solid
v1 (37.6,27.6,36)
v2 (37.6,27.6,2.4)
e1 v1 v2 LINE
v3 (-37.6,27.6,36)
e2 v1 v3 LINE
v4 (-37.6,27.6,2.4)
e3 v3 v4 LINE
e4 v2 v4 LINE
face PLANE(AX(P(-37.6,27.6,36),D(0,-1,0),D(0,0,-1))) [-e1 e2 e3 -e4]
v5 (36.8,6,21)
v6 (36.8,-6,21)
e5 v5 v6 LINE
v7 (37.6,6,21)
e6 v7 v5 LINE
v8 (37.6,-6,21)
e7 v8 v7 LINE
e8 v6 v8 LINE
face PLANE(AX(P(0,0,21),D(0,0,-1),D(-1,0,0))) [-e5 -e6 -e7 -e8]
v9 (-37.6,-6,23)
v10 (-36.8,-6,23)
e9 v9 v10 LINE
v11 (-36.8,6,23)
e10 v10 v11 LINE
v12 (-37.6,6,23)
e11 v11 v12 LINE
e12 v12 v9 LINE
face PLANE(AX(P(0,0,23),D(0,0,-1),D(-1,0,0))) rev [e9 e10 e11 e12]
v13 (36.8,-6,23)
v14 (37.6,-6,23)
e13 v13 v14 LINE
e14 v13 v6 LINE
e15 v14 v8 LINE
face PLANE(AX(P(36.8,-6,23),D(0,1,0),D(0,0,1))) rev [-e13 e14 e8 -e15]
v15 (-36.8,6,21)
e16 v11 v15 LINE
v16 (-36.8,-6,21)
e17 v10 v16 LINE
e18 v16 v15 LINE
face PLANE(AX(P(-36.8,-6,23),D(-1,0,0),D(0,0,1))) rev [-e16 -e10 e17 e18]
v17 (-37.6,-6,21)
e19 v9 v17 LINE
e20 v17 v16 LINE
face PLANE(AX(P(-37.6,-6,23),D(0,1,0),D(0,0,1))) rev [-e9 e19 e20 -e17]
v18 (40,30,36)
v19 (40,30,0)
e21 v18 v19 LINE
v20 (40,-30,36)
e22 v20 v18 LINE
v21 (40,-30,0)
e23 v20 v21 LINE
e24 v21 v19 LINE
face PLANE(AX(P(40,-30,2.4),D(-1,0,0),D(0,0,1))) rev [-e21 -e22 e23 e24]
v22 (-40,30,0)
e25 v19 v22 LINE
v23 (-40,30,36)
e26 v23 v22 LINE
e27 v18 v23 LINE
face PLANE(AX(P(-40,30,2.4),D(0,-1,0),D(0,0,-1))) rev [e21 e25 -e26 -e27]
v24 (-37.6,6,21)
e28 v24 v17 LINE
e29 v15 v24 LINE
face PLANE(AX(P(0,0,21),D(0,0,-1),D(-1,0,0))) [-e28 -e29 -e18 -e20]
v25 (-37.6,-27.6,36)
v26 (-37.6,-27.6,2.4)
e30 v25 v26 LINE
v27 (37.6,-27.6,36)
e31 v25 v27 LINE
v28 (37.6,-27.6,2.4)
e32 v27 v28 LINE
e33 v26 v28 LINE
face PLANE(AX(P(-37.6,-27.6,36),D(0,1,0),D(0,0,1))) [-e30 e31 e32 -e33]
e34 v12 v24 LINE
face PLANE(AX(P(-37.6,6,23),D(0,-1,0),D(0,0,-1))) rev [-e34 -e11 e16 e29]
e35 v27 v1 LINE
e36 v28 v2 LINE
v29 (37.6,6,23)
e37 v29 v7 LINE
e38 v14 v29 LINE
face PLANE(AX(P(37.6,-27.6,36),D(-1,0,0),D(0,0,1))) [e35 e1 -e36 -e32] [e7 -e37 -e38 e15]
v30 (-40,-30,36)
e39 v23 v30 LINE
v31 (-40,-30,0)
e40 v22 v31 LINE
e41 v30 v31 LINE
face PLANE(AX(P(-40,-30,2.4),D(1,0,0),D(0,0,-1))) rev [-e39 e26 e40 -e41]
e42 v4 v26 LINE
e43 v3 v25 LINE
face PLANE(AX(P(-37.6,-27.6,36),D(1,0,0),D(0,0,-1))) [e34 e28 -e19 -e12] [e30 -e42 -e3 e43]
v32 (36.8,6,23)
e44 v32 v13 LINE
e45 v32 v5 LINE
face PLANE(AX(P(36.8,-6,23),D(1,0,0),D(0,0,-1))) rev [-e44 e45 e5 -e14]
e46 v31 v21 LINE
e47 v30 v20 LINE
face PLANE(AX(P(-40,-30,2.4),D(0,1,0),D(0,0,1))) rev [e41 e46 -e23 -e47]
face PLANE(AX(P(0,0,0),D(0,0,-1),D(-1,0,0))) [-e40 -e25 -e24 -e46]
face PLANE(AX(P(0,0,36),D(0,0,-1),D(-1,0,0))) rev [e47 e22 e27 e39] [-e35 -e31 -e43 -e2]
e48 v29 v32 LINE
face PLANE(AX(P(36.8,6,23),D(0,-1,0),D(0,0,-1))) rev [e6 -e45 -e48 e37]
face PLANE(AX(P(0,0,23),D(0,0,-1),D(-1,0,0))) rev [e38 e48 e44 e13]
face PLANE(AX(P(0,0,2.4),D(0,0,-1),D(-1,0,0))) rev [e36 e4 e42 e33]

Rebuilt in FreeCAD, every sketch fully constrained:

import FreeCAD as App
import Part
import Sketcher
from FreeCAD import Vector
Q = App.Units.Quantity

doc = App.newDocument("Part")
body = doc.addObject("PartDesign::Body", "Body")

# Sketch on XY plane
sketch1 = body.newObject("Sketcher::SketchObject", "Sketch")
sketch1.AttachmentSupport = (doc.getObject("XY_Plane"), [""])
sketch1.MapMode = "FlatFace"
sketch1.addGeometry([
    Part.LineSegment(Vector(-40, 30, 0), Vector(-40, -30, 0)),
    Part.LineSegment(Vector(-40, -30, 0), Vector(40, -30, 0)),
    Part.LineSegment(Vector(40, -30, 0), Vector(40, 30, 0)),
    Part.LineSegment(Vector(40, 30, 0), Vector(-40, 30, 0)),
], False)
sketch1.addConstraint([
    Sketcher.Constraint("Coincident", 0, 2, 1, 1),
    Sketcher.Constraint("Coincident", 1, 2, 2, 1),
    Sketcher.Constraint("Coincident", 2, 2, 3, 1),
    Sketcher.Constraint("Coincident", 3, 2, 0, 1),
    Sketcher.Constraint("Vertical", 0),
    Sketcher.Constraint("Horizontal", 1),
    Sketcher.Constraint("Vertical", 2),
    Sketcher.Constraint("Horizontal", 3),
    Sketcher.Constraint("Symmetric", 0, 2, 2, 2, -1, 1),
    Sketcher.Constraint("DistanceX", 1, 1, 1, 2, Q("80 mm")),
    Sketcher.Constraint("DistanceY", 0, 2, 0, 1, Q("60 mm")),
])
pad1 = body.newObject("PartDesign::Pad", "Pad")
pad1.Profile = sketch1
pad1.Length = 2.4

# Sketch on XY plane
sketch2 = body.newObject("Sketcher::SketchObject", "Sketch001")
sketch2.AttachmentSupport = (doc.getObject("XY_Plane"), [""])
sketch2.MapMode = "FlatFace"
sketch2.AttachmentOffset = App.Placement(Vector(0, 0, 2.4), App.Rotation())
sketch2.addGeometry([
    Part.LineSegment(Vector(-40, 30, 0), Vector(-40, -30, 0)),  # 0
    Part.LineSegment(Vector(-40, -30, 0), Vector(40, -30, 0)),  # 1
    Part.LineSegment(Vector(40, -30, 0), Vector(40, 30, 0)),  # 2
    Part.LineSegment(Vector(40, 30, 0), Vector(-40, 30, 0)),  # 3
    Part.LineSegment(Vector(38, -28, 0), Vector(-38, -28, 0)),  # 4
    Part.LineSegment(Vector(-38, -28, 0), Vector(-38, 28, 0)),  # 5
    Part.LineSegment(Vector(-38, 28, 0), Vector(38, 28, 0)),  # 6
    Part.LineSegment(Vector(38, 28, 0), Vector(38, -28, 0)),  # 7
], False)
sketch2.addConstraint([
    Sketcher.Constraint("Coincident", 0, 2, 1, 1),
    Sketcher.Constraint("Coincident", 1, 2, 2, 1),
    Sketcher.Constraint("Coincident", 2, 2, 3, 1),
    Sketcher.Constraint("Coincident", 3, 2, 0, 1),
    Sketcher.Constraint("Coincident", 4, 2, 5, 1),
    Sketcher.Constraint("Coincident", 5, 2, 6, 1),
    Sketcher.Constraint("Coincident", 6, 2, 7, 1),
    Sketcher.Constraint("Coincident", 7, 2, 4, 1),
    Sketcher.Constraint("Vertical", 0),
    Sketcher.Constraint("Horizontal", 1),
    Sketcher.Constraint("Vertical", 2),
    Sketcher.Constraint("Horizontal", 3),
    Sketcher.Constraint("Horizontal", 4),
    Sketcher.Constraint("Vertical", 5),
    Sketcher.Constraint("Horizontal", 6),
    Sketcher.Constraint("Vertical", 7),
    Sketcher.Constraint("Symmetric", 0, 2, 2, 2, -1, 1),
    Sketcher.Constraint("Symmetric", 4, 2, 6, 2, -1, 1),
    Sketcher.Constraint("DistanceX", 1, 1, 1, 2, Q("80 mm")),
    Sketcher.Constraint("DistanceY", 0, 2, 0, 1, Q("60 mm")),
    Sketcher.Constraint("DistanceX", 4, 2, 4, 1, Q("75.2 mm")),
    Sketcher.Constraint("DistanceY", 5, 1, 5, 2, Q("55.2 mm")),
])
pad2 = body.newObject("PartDesign::Pad", "Pad001")
pad2.Profile = sketch2
pad2.Length = 33.6

# Sketch on XY plane
sketch3 = body.newObject("Sketcher::SketchObject", "Sketch002")
sketch3.AttachmentSupport = (doc.getObject("XY_Plane"), [""])
sketch3.MapMode = "FlatFace"
sketch3.AttachmentOffset = App.Placement(Vector(0, 0, 21), App.Rotation())
sketch3.addGeometry([
    Part.LineSegment(Vector(-37.6, 6, 0), Vector(-37.6, -6, 0)),
    Part.LineSegment(Vector(-37.6, -6, 0), Vector(-36.8, -6, 0)),
    Part.LineSegment(Vector(-36.8, -6, 0), Vector(-36.8, 6, 0)),
    Part.LineSegment(Vector(-36.8, 6, 0), Vector(-37.6, 6, 0)),
], False)
sketch3.addConstraint([
    Sketcher.Constraint("Coincident", 0, 2, 1, 1),
    Sketcher.Constraint("Coincident", 1, 2, 2, 1),
    Sketcher.Constraint("Coincident", 2, 2, 3, 1),
    Sketcher.Constraint("Coincident", 3, 2, 0, 1),
    Sketcher.Constraint("Vertical", 0),
    Sketcher.Constraint("Horizontal", 1),
    Sketcher.Constraint("Vertical", 2),
    Sketcher.Constraint("Horizontal", 3),
    Sketcher.Constraint("DistanceY", 0, 2, 0, 1, Q("12 mm")),
    Sketcher.Constraint("DistanceX", 1, 1, 1, 2, Q("0.8 mm")),
    Sketcher.Constraint("DistanceY", 0, 2, -1, 1, Q("6 mm")),
    Sketcher.Constraint("DistanceX", 0, 2, -1, 1, Q("37.6 mm")),
])
pad3 = body.newObject("PartDesign::Pad", "Pad002")
pad3.Profile = sketch3
pad3.Length = 2

# Sketch on XY plane
sketch4 = body.newObject("Sketcher::SketchObject", "Sketch003")
sketch4.AttachmentSupport = (doc.getObject("XY_Plane"), [""])
sketch4.MapMode = "FlatFace"
sketch4.AttachmentOffset = App.Placement(Vector(0, 0, 21), App.Rotation())
sketch4.addGeometry([
    Part.LineSegment(Vector(36.8, 6, 0), Vector(36.8, -6, 0)),
    Part.LineSegment(Vector(36.8, -6, 0), Vector(37.6, -6, 0)),
    Part.LineSegment(Vector(37.6, -6, 0), Vector(37.6, 6, 0)),
    Part.LineSegment(Vector(37.6, 6, 0), Vector(36.8, 6, 0)),
], False)
sketch4.addConstraint([
    Sketcher.Constraint("Coincident", 0, 2, 1, 1),
    Sketcher.Constraint("Coincident", 1, 2, 2, 1),
    Sketcher.Constraint("Coincident", 2, 2, 3, 1),
    Sketcher.Constraint("Coincident", 3, 2, 0, 1),
    Sketcher.Constraint("Vertical", 0),
    Sketcher.Constraint("Horizontal", 1),
    Sketcher.Constraint("Vertical", 2),
    Sketcher.Constraint("Horizontal", 3),
    Sketcher.Constraint("DistanceY", 0, 2, 0, 1, Q("12 mm")),
    Sketcher.Constraint("DistanceX", 1, 1, 1, 2, Q("0.8 mm")),
    Sketcher.Constraint("DistanceY", 0, 2, -1, 1, Q("6 mm")),
    Sketcher.Constraint("DistanceX", -1, 1, 0, 2, Q("36.8 mm")),
])
pad4 = body.newObject("PartDesign::Pad", "Pad003")
pad4.Profile = sketch4
pad4.Length = 2

doc.recompute()
